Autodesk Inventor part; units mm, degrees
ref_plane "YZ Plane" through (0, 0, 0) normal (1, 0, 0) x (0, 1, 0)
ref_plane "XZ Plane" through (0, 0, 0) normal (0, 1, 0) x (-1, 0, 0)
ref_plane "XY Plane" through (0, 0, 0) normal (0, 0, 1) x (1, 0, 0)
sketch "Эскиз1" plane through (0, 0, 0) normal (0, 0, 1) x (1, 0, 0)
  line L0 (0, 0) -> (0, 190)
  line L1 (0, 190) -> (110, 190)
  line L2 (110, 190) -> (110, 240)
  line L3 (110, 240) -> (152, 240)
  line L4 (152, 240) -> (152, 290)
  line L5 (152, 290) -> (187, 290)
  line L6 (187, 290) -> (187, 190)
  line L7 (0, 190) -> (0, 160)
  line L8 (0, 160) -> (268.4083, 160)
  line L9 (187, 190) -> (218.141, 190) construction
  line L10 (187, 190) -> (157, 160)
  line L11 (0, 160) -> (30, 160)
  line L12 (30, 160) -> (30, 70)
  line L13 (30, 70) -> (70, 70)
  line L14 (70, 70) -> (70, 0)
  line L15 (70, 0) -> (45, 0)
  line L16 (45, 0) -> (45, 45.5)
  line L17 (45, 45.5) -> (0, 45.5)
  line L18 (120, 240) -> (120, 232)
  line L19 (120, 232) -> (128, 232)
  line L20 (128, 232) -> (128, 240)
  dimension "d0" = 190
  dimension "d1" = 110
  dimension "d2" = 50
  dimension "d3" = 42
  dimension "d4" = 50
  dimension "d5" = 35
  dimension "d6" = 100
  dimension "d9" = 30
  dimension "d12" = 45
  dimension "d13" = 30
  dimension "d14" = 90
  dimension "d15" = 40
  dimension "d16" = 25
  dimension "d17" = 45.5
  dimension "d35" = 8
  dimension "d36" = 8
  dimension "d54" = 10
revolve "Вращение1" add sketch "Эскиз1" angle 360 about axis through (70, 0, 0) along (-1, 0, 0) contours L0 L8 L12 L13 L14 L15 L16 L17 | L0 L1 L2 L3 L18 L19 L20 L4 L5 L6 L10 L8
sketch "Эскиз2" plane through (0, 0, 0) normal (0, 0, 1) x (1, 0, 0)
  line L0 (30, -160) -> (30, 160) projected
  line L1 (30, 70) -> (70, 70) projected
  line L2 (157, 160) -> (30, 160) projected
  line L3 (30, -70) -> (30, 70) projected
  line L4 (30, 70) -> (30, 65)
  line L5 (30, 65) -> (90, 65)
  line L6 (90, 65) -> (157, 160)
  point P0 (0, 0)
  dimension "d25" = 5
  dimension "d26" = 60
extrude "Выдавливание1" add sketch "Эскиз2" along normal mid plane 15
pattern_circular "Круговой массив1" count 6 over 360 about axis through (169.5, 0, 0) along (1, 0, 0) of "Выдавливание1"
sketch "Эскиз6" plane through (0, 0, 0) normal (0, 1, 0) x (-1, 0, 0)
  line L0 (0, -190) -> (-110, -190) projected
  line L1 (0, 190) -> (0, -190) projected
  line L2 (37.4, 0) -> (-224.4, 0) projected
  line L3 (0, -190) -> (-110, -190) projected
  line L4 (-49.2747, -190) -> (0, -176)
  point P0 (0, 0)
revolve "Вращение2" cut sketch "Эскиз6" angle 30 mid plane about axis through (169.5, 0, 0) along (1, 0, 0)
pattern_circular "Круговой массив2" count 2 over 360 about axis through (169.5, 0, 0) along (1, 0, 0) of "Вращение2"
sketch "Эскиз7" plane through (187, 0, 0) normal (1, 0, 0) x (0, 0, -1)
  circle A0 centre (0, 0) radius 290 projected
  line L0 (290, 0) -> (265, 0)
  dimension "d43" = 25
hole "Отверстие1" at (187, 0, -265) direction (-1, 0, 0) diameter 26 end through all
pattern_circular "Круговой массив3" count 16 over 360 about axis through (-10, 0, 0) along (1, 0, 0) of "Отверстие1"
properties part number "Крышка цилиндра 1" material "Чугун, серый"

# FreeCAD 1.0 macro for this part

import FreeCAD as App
import Part
import Sketcher
Q = App.Units.Quantity


def add_polygon(sketch, points):
    """Adds a closed chain of lines whose ends are joined by coincident constraints."""
    first, n = sketch.GeometryCount, len(points)
    for a, b in zip(points, points[1:] + points[:1]):
        sketch.addGeometry(Part.LineSegment(App.Vector(*a, 0), App.Vector(*b, 0)), False)
    for i in range(n):
        sketch.addConstraint(Sketcher.Constraint("Coincident", first + i, 2, first + (i + 1) % n, 1))

doc = App.newDocument("Part")
params = doc.addObject("Spreadsheet::Sheet", "Params")
for row, (alias, value) in enumerate([
    ("sketch1_width", "45 mm"),
    ("sketch1_width2", "25 mm"),
    ("sketch1_width3", "40 mm"),
    ("sketch1_width4", "35 mm"),
    ("sketch1_width5", "8 mm"),
    ("revolution_angle", "360 deg"),
    ("sketch2_width", "60 mm"),
    ("sketch2_width2", "127 mm"),
    ("sketch2_height", "95 mm"),
    ("pad1_length", "15 mm"),
    ("sketch3_height", "14 mm"),
    ("groove_angle", "30 deg"),
    ("sketch4_diameter", "26 mm"),
    ("hole_diameter", "26 mm"),
], start=1):
    params.set(f"A{row}", alias)
    params.set(f"B{row}", "=" + value)
    params.setAlias(f"B{row}", alias)

body = doc.addObject("PartDesign::Body", "Body")

# Sketch on XY plane
sketch1 = body.newObject("Sketcher::SketchObject", "Sketch")
sketch1.AttachmentSupport = (doc.getObject("XY_Plane"), [""])
sketch1.MapMode = "FlatFace"
add_polygon(sketch1, [(0, 46), (45, 46), (45, 0), (70, 0), (70, 70), (30, 70), (30, 160), (157, 160), (187, 190), (187, 290), (152, 290), (152, 240), (128, 240), (128, 232), (120, 232), (120, 240), (110, 240), (110, 190), (0, 190)])  # lines 0-18
sketch1.addConstraint([
    Sketcher.Constraint("Horizontal", 0),
    Sketcher.Constraint("Vertical", 1),
    Sketcher.Constraint("Horizontal", 2),
    Sketcher.Constraint("Vertical", 3),
    Sketcher.Constraint("Horizontal", 4),
    Sketcher.Constraint("Vertical", 5),
    Sketcher.Constraint("Horizontal", 6),
    Sketcher.Constraint("Vertical", 8),
    Sketcher.Constraint("Horizontal", 9),
    Sketcher.Constraint("Vertical", 10),
    Sketcher.Constraint("Horizontal", 11),
    Sketcher.Constraint("Vertical", 12),
    Sketcher.Constraint("Horizontal", 13),
    Sketcher.Constraint("Vertical", 14),
    Sketcher.Constraint("Horizontal", 15),
    Sketcher.Constraint("Vertical", 16),
    Sketcher.Constraint("Horizontal", 17),
    Sketcher.Constraint("Vertical", 18),
    Sketcher.Constraint("PointOnObject", 1, 2, -1),
    Sketcher.Constraint("PointOnObject", 17, 2, -2),
    Sketcher.Constraint("Horizontal", 11, 2, 14, 2),
    Sketcher.Constraint("Horizontal", 7, 2, 16, 2),
    Sketcher.Constraint("Equal", 13, 12),
    Sketcher.Constraint("Equal", 10, 16),
    Sketcher.Constraint("DistanceX", 0, 1, 0, 2, Q("45 mm")),
    Sketcher.Constraint("DistanceX", 2, 1, 2, 2, Q("25 mm")),
    Sketcher.Constraint("DistanceX", 4, 2, 4, 1, Q("40 mm")),
    Sketcher.Constraint("DistanceX", 9, 2, 9, 1, Q("35 mm")),
    Sketcher.Constraint("DistanceX", 13, 2, 13, 1, Q("8 mm")),
    Sketcher.Constraint("DistanceX", 15, 2, 15, 1, Q("10 mm")),
    Sketcher.Constraint("DistanceX", 17, 2, 17, 1, Q("110 mm")),
    Sketcher.Constraint("DistanceY", 5, 1, 5, 2, Q("90 mm")),
    Sketcher.Constraint("DistanceY", 8, 1, 8, 2, Q("100 mm")),
    Sketcher.Constraint("Angle", 7, Q("45 deg")),
    Sketcher.Constraint("DistanceY", 1, 2, 1, 1, Q("45.5 mm")),
    Sketcher.Constraint("DistanceY", -1, 1, 7, 2, Q("190 mm")),
    Sketcher.Constraint("DistanceX", 6, 2, 7, 2, Q("30 mm")),
    Sketcher.Constraint("DistanceX", 15, 2, 10, 2, Q("42 mm")),
])
sketch1.setExpression("Constraints[43]", "Params.sketch1_width")
sketch1.setExpression("Constraints[44]", "Params.sketch1_width2")
sketch1.setExpression("Constraints[45]", "Params.sketch1_width3")
sketch1.setExpression("Constraints[46]", "Params.sketch1_width4")
sketch1.setExpression("Constraints[47]", "Params.sketch1_width5")
revolution = body.newObject("PartDesign::Revolution", "Revolution")
revolution.Profile = sketch1
revolution.ReferenceAxis = (sketch1, ["H_Axis"])
revolution.setExpression("Angle", "Params.revolution_angle")

# Sketch on XY plane
sketch2 = body.newObject("Sketcher::SketchObject", "Sketch001")
sketch2.AttachmentSupport = (doc.getObject("XY_Plane"), [""])
sketch2.MapMode = "FlatFace"
add_polygon(sketch2, [(30, 160), (30, 65), (90, 65), (157, 160)])  # lines 0-3
sketch2.addConstraint([
    Sketcher.Constraint("Vertical", 0),
    Sketcher.Constraint("Horizontal", 1),
    Sketcher.Constraint("Horizontal", 3),
    Sketcher.Constraint("DistanceX", 1, 1, 1, 2, Q("60 mm")),
    Sketcher.Constraint("DistanceX", 3, 2, 3, 1, Q("127 mm")),
    Sketcher.Constraint("DistanceY", 0, 2, 0, 1, Q("95 mm")),
    Sketcher.Constraint("DistanceX", -1, 1, 0, 2, Q("30 mm")),
    Sketcher.Constraint("DistanceY", -1, 1, 0, 2, Q("65 mm")),
])
sketch2.setExpression("Constraints[7]", "Params.sketch2_width")
sketch2.setExpression("Constraints[8]", "Params.sketch2_width2")
sketch2.setExpression("Constraints[9]", "Params.sketch2_height")
pad1 = body.newObject("PartDesign::Pad", "Pad")
pad1.Profile = sketch2
pad1.setExpression("Length", "Params.pad1_length")
pad1.Midplane = True
doc.recompute()

polarpattern = body.newObject("PartDesign::PolarPattern", "PolarPattern")
polarpattern.Originals = [pad1]
polarpattern.Axis = (doc.getObject("X_Axis"), [""])
polarpattern.Angle = 360
polarpattern.Occurrences = 6
body.Tip = polarpattern

# Sketch on XZ plane
sketch3 = body.newObject("Sketcher::SketchObject", "Sketch002")
sketch3.AttachmentSupport = (doc.getObject("XZ_Plane"), [""])
sketch3.MapMode = "FlatFace"
add_polygon(sketch3, [(49, -190), (0, -190), (0, -176)])  # lines 0-2
sketch3.addConstraint([
    Sketcher.Constraint("Horizontal", 0),
    Sketcher.Constraint("Vertical", 1),
    Sketcher.Constraint("PointOnObject", 0, 2, -2),
    Sketcher.Constraint("DistanceY", 1, 1, 1, 2, Q("14 mm")),
    Sketcher.Constraint("DistanceY", 0, 2, -1, 1, Q("190 mm")),
    Sketcher.Constraint("Angle", 2, Q("-15.861 deg")),
])
sketch3.setExpression("Constraints[6]", "Params.sketch3_height")
groove = body.newObject("PartDesign::Groove", "Groove")
groove.Profile = sketch3
groove.ReferenceAxis = (sketch3, ["H_Axis"])
groove.setExpression("Angle", "Params.groove_angle")
groove.Midplane = True
doc.recompute()

polarpattern2 = body.newObject("PartDesign::PolarPattern", "PolarPattern001")
polarpattern2.Originals = [groove]
polarpattern2.Axis = (doc.getObject("X_Axis"), [""])
polarpattern2.Angle = 360
polarpattern2.Occurrences = 2
body.Tip = polarpattern2

# Sketch on YZ plane
sketch4 = body.newObject("Sketcher::SketchObject", "Sketch003")
sketch4.AttachmentSupport = (doc.getObject("YZ_Plane"), [""])
sketch4.MapMode = "FlatFace"
sketch4.AttachmentOffset = App.Placement(App.Vector(0, 0, 187), App.Rotation())
sketch4.addGeometry(Part.Circle(App.Vector(0, -265, 0), App.Vector(0, 0, 1), 13), False)
sketch4.addConstraint([
    Sketcher.Constraint("PointOnObject", 0, 3, -2),
    Sketcher.Constraint("Diameter", 0, Q("26 mm")),
    Sketcher.Constraint("DistanceY", 0, 3, -1, 1, Q("265 mm")),
])
sketch4.setExpression("Constraints[1]", "Params.sketch4_diameter")
doc.recompute()
hole = body.newObject("PartDesign::Hole", "Hole")
hole.Profile = sketch4
hole.ThreadType = "None"
hole.setExpression("Diameter", "Params.hole_diameter")
hole.DepthType = "ThroughAll"
doc.recompute()

polarpattern3 = body.newObject("PartDesign::PolarPattern", "PolarPattern002")
polarpattern3.Originals = [hole]
polarpattern3.Axis = (doc.getObject("X_Axis"), [""])
polarpattern3.Angle = 360
polarpattern3.Occurrences = 16
body.Tip = polarpattern3

doc.recompute()
